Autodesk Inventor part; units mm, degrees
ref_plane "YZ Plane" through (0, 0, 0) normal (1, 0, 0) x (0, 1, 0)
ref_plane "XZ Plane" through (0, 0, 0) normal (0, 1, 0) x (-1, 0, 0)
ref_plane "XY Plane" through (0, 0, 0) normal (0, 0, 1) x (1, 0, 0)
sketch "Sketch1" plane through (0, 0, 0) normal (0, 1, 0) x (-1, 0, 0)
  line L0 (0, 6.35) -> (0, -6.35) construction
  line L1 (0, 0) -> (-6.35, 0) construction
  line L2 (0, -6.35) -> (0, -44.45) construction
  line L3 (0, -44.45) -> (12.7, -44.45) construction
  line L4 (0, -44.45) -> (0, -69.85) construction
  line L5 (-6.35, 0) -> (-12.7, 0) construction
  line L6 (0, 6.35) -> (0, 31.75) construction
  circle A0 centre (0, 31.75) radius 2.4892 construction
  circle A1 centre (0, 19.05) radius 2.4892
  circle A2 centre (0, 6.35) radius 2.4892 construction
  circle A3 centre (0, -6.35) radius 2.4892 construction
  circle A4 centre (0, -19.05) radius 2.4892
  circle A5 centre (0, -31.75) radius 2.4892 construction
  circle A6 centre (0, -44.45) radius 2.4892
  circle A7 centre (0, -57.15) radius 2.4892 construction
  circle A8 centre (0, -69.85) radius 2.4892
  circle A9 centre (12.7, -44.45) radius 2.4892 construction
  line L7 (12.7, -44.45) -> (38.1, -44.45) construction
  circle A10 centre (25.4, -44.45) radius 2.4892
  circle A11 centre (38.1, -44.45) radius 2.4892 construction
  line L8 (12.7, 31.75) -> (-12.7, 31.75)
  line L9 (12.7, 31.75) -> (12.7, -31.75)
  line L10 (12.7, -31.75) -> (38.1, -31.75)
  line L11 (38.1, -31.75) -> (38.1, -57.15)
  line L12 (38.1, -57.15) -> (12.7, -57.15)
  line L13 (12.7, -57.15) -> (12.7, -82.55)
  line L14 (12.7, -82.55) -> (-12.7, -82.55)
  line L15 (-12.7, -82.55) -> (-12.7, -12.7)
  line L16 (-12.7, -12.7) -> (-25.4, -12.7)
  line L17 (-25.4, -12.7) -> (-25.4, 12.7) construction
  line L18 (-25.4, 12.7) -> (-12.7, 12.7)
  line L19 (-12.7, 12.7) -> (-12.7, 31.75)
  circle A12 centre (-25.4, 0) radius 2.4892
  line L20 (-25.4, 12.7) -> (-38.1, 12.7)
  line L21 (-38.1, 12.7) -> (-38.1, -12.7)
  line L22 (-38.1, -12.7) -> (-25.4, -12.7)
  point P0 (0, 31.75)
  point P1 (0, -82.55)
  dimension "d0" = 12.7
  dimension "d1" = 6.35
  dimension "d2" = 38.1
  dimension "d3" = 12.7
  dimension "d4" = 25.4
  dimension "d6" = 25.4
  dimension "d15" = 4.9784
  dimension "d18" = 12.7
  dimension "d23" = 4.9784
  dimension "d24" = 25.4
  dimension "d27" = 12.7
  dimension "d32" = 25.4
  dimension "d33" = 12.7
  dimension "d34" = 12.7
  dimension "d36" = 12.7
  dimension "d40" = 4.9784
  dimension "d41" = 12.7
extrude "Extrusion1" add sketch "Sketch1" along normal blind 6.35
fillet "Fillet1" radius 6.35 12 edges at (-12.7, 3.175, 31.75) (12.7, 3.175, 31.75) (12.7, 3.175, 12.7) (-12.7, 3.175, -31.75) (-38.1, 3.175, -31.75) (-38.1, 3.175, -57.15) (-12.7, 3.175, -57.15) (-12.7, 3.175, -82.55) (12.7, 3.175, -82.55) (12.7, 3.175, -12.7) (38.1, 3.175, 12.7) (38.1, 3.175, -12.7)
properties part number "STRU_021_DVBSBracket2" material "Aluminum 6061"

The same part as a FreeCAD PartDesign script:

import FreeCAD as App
import Part
import Sketcher

V = App.Vector
Q = App.Units.Quantity


def edges_at(feature, points):
    """Names of the edges that pass closest to the given points."""
    edges = feature.Shape.Edges
    near = lambda p: min(range(len(edges)), key=lambda i: edges[i].distToShape(Part.Vertex(*p))[0])
    return sorted({f"Edge{near(p) + 1}" for p in points})

doc = App.newDocument("Part")
params = doc.addObject("Spreadsheet::Sheet", "Params")
for row, (alias, value) in enumerate([
    ("sketch1_width", "1 in"),
    ("sketch1_diameter", "0.196 in"),
    ("pad1_length", "0.25 in"),
    ("fillet_radius", "0.25 in"),
], start=1):
    params.set(f"A{row}", alias)
    params.set(f"B{row}", "=" + value)
    params.setAlias(f"B{row}", alias)

body = doc.addObject("PartDesign::Body", "Body")

# Sketch on XZ plane
sketch1 = doc.addObject("Sketcher::SketchObject", "Sketch")
body.addObject(sketch1)
sketch1.AttachmentSupport = (doc.XZ_Plane, [""])
sketch1.MapMode = "FlatFace"
sketch1.addGeometry(Part.LineSegment(V(-12.7, -31.75, 0), V(-12.7, 31.75, 0)), False)
sketch1.addGeometry(Part.LineSegment(V(-12.7, 31.75, 0), V(12.7, 31.75, 0)), False)
sketch1.addGeometry(Part.LineSegment(V(12.7, 31.75, 0), V(12.7, 12.7, 0)), False)
sketch1.addGeometry(Part.LineSegment(V(12.7, 12.7, 0), V(38.1, 12.7, 0)), False)
sketch1.addGeometry(Part.LineSegment(V(38.1, 12.7, 0), V(38.1, -12.7, 0)), False)
sketch1.addGeometry(Part.LineSegment(V(38.1, -12.7, 0), V(12.7, -12.7, 0)), False)
sketch1.addGeometry(Part.LineSegment(V(12.7, -12.7, 0), V(12.7, -82.55, 0)), False)
sketch1.addGeometry(Part.LineSegment(V(12.7, -82.55, 0), V(-12.7, -82.55, 0)), False)
sketch1.addGeometry(Part.LineSegment(V(-12.7, -82.55, 0), V(-12.7, -57.15, 0)), False)
sketch1.addGeometry(Part.LineSegment(V(-12.7, -57.15, 0), V(-38.1, -57.15, 0)), False)
sketch1.addGeometry(Part.LineSegment(V(-38.1, -57.15, 0), V(-38.1, -31.75, 0)), False)
sketch1.addGeometry(Part.LineSegment(V(-38.1, -31.75, 0), V(-12.7, -31.75, 0)), False)
sketch1.addGeometry(Part.Circle(V(0, -69.85, 0), V(0, 0, 1), 2.4892), False)
sketch1.addGeometry(Part.Circle(V(0, -44.45, 0), V(0, 0, 1), 2.4892), False)
sketch1.addGeometry(Part.Circle(V(-25.4, -44.45, 0), V(0, 0, 1), 2.4892), False)
sketch1.addGeometry(Part.Circle(V(25.4, 0, 0), V(0, 0, 1), 2.4892), False)
sketch1.addGeometry(Part.Circle(V(0, -19.05, 0), V(0, 0, 1), 2.4892), False)
sketch1.addGeometry(Part.Circle(V(0, 19.05, 0), V(0, 0, 1), 2.4892), False)
sketch1.addConstraint(Sketcher.Constraint("Coincident", 0, 2, 1, 1))
sketch1.addConstraint(Sketcher.Constraint("Coincident", 1, 2, 2, 1))
sketch1.addConstraint(Sketcher.Constraint("Coincident", 2, 2, 3, 1))
sketch1.addConstraint(Sketcher.Constraint("Coincident", 3, 2, 4, 1))
sketch1.addConstraint(Sketcher.Constraint("Coincident", 4, 2, 5, 1))
sketch1.addConstraint(Sketcher.Constraint("Coincident", 5, 2, 6, 1))
sketch1.addConstraint(Sketcher.Constraint("Coincident", 6, 2, 7, 1))
sketch1.addConstraint(Sketcher.Constraint("Coincident", 7, 2, 8, 1))
sketch1.addConstraint(Sketcher.Constraint("Coincident", 8, 2, 9, 1))
sketch1.addConstraint(Sketcher.Constraint("Coincident", 9, 2, 10, 1))
sketch1.addConstraint(Sketcher.Constraint("Coincident", 10, 2, 11, 1))
sketch1.addConstraint(Sketcher.Constraint("Coincident", 11, 2, 0, 1))
sketch1.addConstraint(Sketcher.Constraint("Vertical", 0))
sketch1.addConstraint(Sketcher.Constraint("Horizontal", 1))
sketch1.addConstraint(Sketcher.Constraint("Vertical", 2))
sketch1.addConstraint(Sketcher.Constraint("Horizontal", 3))
sketch1.addConstraint(Sketcher.Constraint("Vertical", 4))
sketch1.addConstraint(Sketcher.Constraint("Horizontal", 5))
sketch1.addConstraint(Sketcher.Constraint("Vertical", 6))
sketch1.addConstraint(Sketcher.Constraint("Horizontal", 7))
sketch1.addConstraint(Sketcher.Constraint("Vertical", 8))
sketch1.addConstraint(Sketcher.Constraint("Horizontal", 9))
sketch1.addConstraint(Sketcher.Constraint("Vertical", 10))
sketch1.addConstraint(Sketcher.Constraint("Horizontal", 11))
sketch1.addConstraint(Sketcher.Constraint("Equal", 12, 13))
sketch1.addConstraint(Sketcher.Constraint("Equal", 13, 14))
sketch1.addConstraint(Sketcher.Constraint("Equal", 14, 15))
sketch1.addConstraint(Sketcher.Constraint("Equal", 15, 16))
sketch1.addConstraint(Sketcher.Constraint("Equal", 16, 17))
sketch1.addConstraint(Sketcher.Constraint("Symmetric", 16, 3, 17, 3, -1, 1))
sketch1.addConstraint(Sketcher.Constraint("Symmetric", 1, 2, 11, 2, -1, 1))
sketch1.addConstraint(Sketcher.Constraint("Symmetric", 2, 2, 5, 2, -1))
sketch1.addConstraint(Sketcher.Constraint("PointOnObject", 12, 3, -2))
sketch1.addConstraint(Sketcher.Constraint("PointOnObject", 13, 3, -2))
sketch1.addConstraint(Sketcher.Constraint("PointOnObject", 15, 3, -1))
sketch1.addConstraint(Sketcher.Constraint("PointOnObject", 16, 3, -2))
sketch1.addConstraint(Sketcher.Constraint("Horizontal", 13, 3, 14, 3))
sketch1.addConstraint(Sketcher.Constraint("Vertical", 0, 2, 7, 2))
sketch1.addConstraint(Sketcher.Constraint("Equal", 1, 3))
sketch1.addConstraint(Sketcher.Constraint("Equal", 7, 9))
sketch1.addConstraint(Sketcher.Constraint("Equal", 11, 4))
sketch1.addConstraint(Sketcher.Constraint("Equal", 4, 8))
sketch1.addConstraint(Sketcher.Constraint("Equal", 8, 10))
sketch1.addConstraint(Sketcher.Constraint("DistanceX", 1, 1, 1, 2, Q("1 in")))
sketch1.addConstraint(Sketcher.Constraint("Diameter", 12, Q("0.196 in")))
sketch1.addConstraint(Sketcher.Constraint("DistanceX", 14, 3, -1, 1, Q("1 in")))
sketch1.addConstraint(Sketcher.Constraint("DistanceX", -1, 1, 15, 3, Q("1 in")))
sketch1.addConstraint(Sketcher.Constraint("DistanceY", 12, 3, 13, 3, Q("1 in")))
sketch1.addConstraint(Sketcher.Constraint("DistanceY", 13, 3, 16, 3, Q("1 in")))
sketch1.addConstraint(Sketcher.Constraint("DistanceY", 16, 3, 17, 3, Q("1.5 in")))
sketch1.addConstraint(Sketcher.Constraint("DistanceY", 17, 3, 0, 2, Q("0.5 in")))
sketch1.setExpression("Constraints[43]", "Params.sketch1_width")
sketch1.setExpression("Constraints[44]", "Params.sketch1_diameter")
pad1 = doc.addObject("PartDesign::Pad", "Pad")
body.addObject(pad1)
pad1.Profile = sketch1
pad1.setExpression("Length", "Params.pad1_length")
pad1.Reversed = True
doc.recompute()

fillet = doc.addObject("PartDesign::Fillet", "Fillet")
body.addObject(fillet)
fillet.Base = (pad1, edges_at(pad1, [
    (-12.7, 3.175, 31.75),
    (12.7, 3.175, 31.75),
    (12.7, 3.175, 12.7),
    (-12.7, 3.175, -31.75),
    (-38.1, 3.175, -31.75),
    (-38.1, 3.175, -57.15),
    (-12.7, 3.175, -57.15),
    (-12.7, 3.175, -82.55),
    (12.7, 3.175, -82.55),
    (12.7, 3.175, -12.7),
    (38.1, 3.175, 12.7),
    (38.1, 3.175, -12.7),
]))
fillet.setExpression("Radius", "Params.fillet_radius")

doc.recompute()
